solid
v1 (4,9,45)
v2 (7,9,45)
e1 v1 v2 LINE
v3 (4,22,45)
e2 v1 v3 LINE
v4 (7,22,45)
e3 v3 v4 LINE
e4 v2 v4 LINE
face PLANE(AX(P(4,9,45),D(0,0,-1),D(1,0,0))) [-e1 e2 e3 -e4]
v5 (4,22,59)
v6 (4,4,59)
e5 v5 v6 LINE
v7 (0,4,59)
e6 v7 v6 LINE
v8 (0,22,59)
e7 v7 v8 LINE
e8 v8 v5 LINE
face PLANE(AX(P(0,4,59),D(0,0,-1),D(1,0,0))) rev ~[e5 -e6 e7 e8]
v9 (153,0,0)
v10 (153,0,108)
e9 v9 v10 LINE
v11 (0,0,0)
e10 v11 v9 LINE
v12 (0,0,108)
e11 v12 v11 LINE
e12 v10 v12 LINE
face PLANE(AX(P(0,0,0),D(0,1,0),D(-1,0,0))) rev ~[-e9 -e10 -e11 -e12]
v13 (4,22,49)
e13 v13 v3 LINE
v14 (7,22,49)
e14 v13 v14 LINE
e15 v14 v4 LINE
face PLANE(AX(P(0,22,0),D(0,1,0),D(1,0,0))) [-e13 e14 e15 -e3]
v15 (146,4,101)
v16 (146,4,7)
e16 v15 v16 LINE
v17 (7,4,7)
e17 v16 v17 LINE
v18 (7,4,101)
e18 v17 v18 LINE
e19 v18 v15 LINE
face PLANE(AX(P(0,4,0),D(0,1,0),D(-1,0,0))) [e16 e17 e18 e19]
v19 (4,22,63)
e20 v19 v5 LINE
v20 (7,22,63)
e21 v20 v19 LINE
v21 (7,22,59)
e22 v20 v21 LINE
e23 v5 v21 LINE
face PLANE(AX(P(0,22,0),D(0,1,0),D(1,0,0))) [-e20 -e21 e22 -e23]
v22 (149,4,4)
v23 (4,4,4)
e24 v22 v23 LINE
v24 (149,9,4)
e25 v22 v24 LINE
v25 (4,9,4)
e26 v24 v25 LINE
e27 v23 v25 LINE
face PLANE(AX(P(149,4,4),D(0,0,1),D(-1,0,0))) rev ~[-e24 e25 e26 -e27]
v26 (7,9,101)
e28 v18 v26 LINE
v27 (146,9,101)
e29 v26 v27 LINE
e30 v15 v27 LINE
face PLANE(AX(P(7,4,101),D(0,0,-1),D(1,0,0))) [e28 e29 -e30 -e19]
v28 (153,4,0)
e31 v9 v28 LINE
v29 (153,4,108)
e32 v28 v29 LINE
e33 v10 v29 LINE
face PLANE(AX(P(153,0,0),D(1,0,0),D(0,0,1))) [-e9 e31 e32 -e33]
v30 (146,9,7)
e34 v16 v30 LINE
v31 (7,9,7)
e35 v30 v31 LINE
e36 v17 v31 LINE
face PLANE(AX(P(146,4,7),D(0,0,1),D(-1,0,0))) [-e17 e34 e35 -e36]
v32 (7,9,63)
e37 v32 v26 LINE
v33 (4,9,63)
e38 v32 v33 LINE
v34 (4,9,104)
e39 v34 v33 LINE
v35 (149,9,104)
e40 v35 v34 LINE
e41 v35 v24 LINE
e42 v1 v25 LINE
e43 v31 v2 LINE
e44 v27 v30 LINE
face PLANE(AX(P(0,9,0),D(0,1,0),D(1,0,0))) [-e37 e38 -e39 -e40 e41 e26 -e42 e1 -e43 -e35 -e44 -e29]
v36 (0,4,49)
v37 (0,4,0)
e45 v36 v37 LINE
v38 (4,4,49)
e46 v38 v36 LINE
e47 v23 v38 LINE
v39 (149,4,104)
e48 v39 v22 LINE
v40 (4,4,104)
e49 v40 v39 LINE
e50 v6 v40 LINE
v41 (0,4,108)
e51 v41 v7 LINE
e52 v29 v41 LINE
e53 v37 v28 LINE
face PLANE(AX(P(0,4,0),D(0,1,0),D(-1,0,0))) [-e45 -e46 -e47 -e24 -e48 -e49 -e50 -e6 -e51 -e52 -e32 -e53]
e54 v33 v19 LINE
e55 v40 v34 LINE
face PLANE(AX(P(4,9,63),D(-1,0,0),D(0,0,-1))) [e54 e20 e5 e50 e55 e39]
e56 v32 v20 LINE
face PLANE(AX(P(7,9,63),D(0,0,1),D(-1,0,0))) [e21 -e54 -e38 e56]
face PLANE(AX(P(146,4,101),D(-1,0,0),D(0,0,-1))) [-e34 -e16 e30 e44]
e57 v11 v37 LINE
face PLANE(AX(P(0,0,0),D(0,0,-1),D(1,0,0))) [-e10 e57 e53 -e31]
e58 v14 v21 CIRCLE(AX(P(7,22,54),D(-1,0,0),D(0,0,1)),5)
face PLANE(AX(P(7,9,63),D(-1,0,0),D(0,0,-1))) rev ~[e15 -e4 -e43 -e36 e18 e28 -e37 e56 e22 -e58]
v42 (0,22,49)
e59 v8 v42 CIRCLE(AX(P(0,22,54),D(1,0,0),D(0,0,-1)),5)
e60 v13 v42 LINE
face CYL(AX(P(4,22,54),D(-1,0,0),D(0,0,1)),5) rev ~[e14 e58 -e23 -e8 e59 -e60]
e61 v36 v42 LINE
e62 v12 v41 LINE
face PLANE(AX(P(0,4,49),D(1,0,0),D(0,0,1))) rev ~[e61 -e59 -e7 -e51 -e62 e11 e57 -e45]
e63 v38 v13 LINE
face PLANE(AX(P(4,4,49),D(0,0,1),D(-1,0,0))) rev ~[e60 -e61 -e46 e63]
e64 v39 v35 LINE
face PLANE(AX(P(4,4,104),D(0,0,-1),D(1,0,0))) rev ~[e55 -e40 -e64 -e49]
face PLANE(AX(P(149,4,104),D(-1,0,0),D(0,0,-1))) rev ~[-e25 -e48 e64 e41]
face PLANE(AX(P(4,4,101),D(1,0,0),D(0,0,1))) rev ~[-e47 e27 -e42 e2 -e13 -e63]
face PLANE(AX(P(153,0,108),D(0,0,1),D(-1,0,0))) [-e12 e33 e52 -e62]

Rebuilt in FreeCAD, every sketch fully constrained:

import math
import FreeCAD as App
import Part
import Sketcher

doc = App.newDocument("Part")
body = doc.addObject("PartDesign::Body", "Body")

# Sketch on XZ plane
sketch1 = body.newObject("Sketcher::SketchObject", "Sketch")
sketch1.AttachmentSupport = (doc.getObject("XZ_Plane"), [""])
sketch1.MapMode = "FlatFace"
sketch1.addGeometry(Part.LineSegment(App.Vector(153, 0, 0), App.Vector(0, 0, 0)), False)
sketch1.addGeometry(Part.LineSegment(App.Vector(0, 0, 0), App.Vector(0, 108, 0)), False)
sketch1.addGeometry(Part.LineSegment(App.Vector(0, 108, 0), App.Vector(153, 108, 0)), False)
sketch1.addGeometry(Part.LineSegment(App.Vector(153, 108, 0), App.Vector(153, 0, 0)), False)
sketch1.addConstraint(Sketcher.Constraint("Coincident", 0, 2, 1, 1))
sketch1.addConstraint(Sketcher.Constraint("Coincident", 1, 2, 2, 1))
sketch1.addConstraint(Sketcher.Constraint("Coincident", 2, 2, 3, 1))
sketch1.addConstraint(Sketcher.Constraint("Coincident", 3, 2, 0, 1))
sketch1.addConstraint(Sketcher.Constraint("Horizontal", 0))
sketch1.addConstraint(Sketcher.Constraint("Vertical", 1))
sketch1.addConstraint(Sketcher.Constraint("Horizontal", 2))
sketch1.addConstraint(Sketcher.Constraint("Vertical", 3))
sketch1.addConstraint(Sketcher.Constraint("Coincident", 0, 2, -1, 1))
sketch1.addConstraint(Sketcher.Constraint("DistanceX", 0, 2, 0, 1, 153.0))
sketch1.addConstraint(Sketcher.Constraint("DistanceY", 1, 1, 1, 2, 108.0))
pad1 = body.newObject("PartDesign::Pad", "Pad")
pad1.Profile = sketch1
pad1.Length = 4
pad1.Reversed = True

# Sketch on XZ plane
sketch2 = body.newObject("Sketcher::SketchObject", "Sketch001")
sketch2.AttachmentSupport = (doc.getObject("XZ_Plane"), [""])
sketch2.MapMode = "FlatFace"
sketch2.AttachmentOffset = App.Placement(App.Vector(0, 0, -4), App.Rotation())
sketch2.addGeometry(Part.LineSegment(App.Vector(4, 104, 0), App.Vector(149, 104, 0)), False)
sketch2.addGeometry(Part.LineSegment(App.Vector(149, 104, 0), App.Vector(149, 4, 0)), False)
sketch2.addGeometry(Part.LineSegment(App.Vector(149, 4, 0), App.Vector(4, 4, 0)), False)
sketch2.addGeometry(Part.LineSegment(App.Vector(4, 4, 0), App.Vector(4, 104, 0)), False)
sketch2.addGeometry(Part.LineSegment(App.Vector(7, 7, 0), App.Vector(146, 7, 0)), False)
sketch2.addGeometry(Part.LineSegment(App.Vector(146, 7, 0), App.Vector(146, 101, 0)), False)
sketch2.addGeometry(Part.LineSegment(App.Vector(146, 101, 0), App.Vector(7, 101, 0)), False)
sketch2.addGeometry(Part.LineSegment(App.Vector(7, 101, 0), App.Vector(7, 7, 0)), False)
sketch2.addConstraint(Sketcher.Constraint("Coincident", 0, 2, 1, 1))
sketch2.addConstraint(Sketcher.Constraint("Coincident", 1, 2, 2, 1))
sketch2.addConstraint(Sketcher.Constraint("Coincident", 2, 2, 3, 1))
sketch2.addConstraint(Sketcher.Constraint("Coincident", 3, 2, 0, 1))
sketch2.addConstraint(Sketcher.Constraint("Coincident", 4, 2, 5, 1))
sketch2.addConstraint(Sketcher.Constraint("Coincident", 5, 2, 6, 1))
sketch2.addConstraint(Sketcher.Constraint("Coincident", 6, 2, 7, 1))
sketch2.addConstraint(Sketcher.Constraint("Coincident", 7, 2, 4, 1))
sketch2.addConstraint(Sketcher.Constraint("Horizontal", 0))
sketch2.addConstraint(Sketcher.Constraint("Vertical", 1))
sketch2.addConstraint(Sketcher.Constraint("Horizontal", 2))
sketch2.addConstraint(Sketcher.Constraint("Vertical", 3))
sketch2.addConstraint(Sketcher.Constraint("Horizontal", 4))
sketch2.addConstraint(Sketcher.Constraint("Vertical", 5))
sketch2.addConstraint(Sketcher.Constraint("Horizontal", 6))
sketch2.addConstraint(Sketcher.Constraint("Vertical", 7))
sketch2.addConstraint(Sketcher.Constraint("DistanceX", 0, 1, 0, 2, 145.0))
sketch2.addConstraint(Sketcher.Constraint("DistanceX", 4, 1, 4, 2, 139.0))
sketch2.addConstraint(Sketcher.Constraint("DistanceY", 1, 2, 1, 1, 100.0))
sketch2.addConstraint(Sketcher.Constraint("DistanceY", 5, 1, 5, 2, 94.0))
sketch2.addConstraint(Sketcher.Constraint("DistanceY", -1, 1, 1, 2, 4.0))
sketch2.addConstraint(Sketcher.Constraint("DistanceX", -1, 1, 2, 2, 4.0))
sketch2.addConstraint(Sketcher.Constraint("DistanceX", 4, 2, 1, 2, 3.0))
sketch2.addConstraint(Sketcher.Constraint("DistanceY", 1, 2, 4, 2, 3.0))
pad2 = body.newObject("PartDesign::Pad", "Pad001")
pad2.Profile = sketch2
pad2.Length = 5
pad2.Reversed = True

# Sketch on XZ plane
sketch3 = body.newObject("Sketcher::SketchObject", "Sketch002")
sketch3.AttachmentSupport = (doc.getObject("XZ_Plane"), [""])
sketch3.MapMode = "FlatFace"
sketch3.AttachmentOffset = App.Placement(App.Vector(0, 0, -4), App.Rotation())
sketch3.addGeometry(Part.LineSegment(App.Vector(4, 49, 0), App.Vector(0, 49, 0)), False)
sketch3.addGeometry(Part.LineSegment(App.Vector(0, 49, 0), App.Vector(0, 59, 0)), False)
sketch3.addGeometry(Part.LineSegment(App.Vector(0, 59, 0), App.Vector(4, 59, 0)), False)
sketch3.addGeometry(Part.LineSegment(App.Vector(4, 59, 0), App.Vector(4, 49, 0)), False)
sketch3.addConstraint(Sketcher.Constraint("Coincident", 0, 2, 1, 1))
sketch3.addConstraint(Sketcher.Constraint("Coincident", 1, 2, 2, 1))
sketch3.addConstraint(Sketcher.Constraint("Coincident", 2, 2, 3, 1))
sketch3.addConstraint(Sketcher.Constraint("Coincident", 3, 2, 0, 1))
sketch3.addConstraint(Sketcher.Constraint("Horizontal", 0))
sketch3.addConstraint(Sketcher.Constraint("Vertical", 1))
sketch3.addConstraint(Sketcher.Constraint("Horizontal", 2))
sketch3.addConstraint(Sketcher.Constraint("Vertical", 3))
sketch3.addConstraint(Sketcher.Constraint("PointOnObject", 0, 2, -2))
sketch3.addConstraint(Sketcher.Constraint("DistanceX", 0, 2, 0, 1, 4.0))
sketch3.addConstraint(Sketcher.Constraint("DistanceY", 1, 1, 1, 2, 10.0))
sketch3.addConstraint(Sketcher.Constraint("DistanceY", -1, 1, 0, 2, 49.0))
pad3 = body.newObject("PartDesign::Pad", "Pad002")
pad3.Profile = sketch3
pad3.Length = 18
pad3.Reversed = True

# Sketch on YZ plane
sketch4 = body.newObject("Sketcher::SketchObject", "Sketch003")
sketch4.AttachmentSupport = (doc.getObject("YZ_Plane"), [""])
sketch4.MapMode = "FlatFace"
sketch4.AttachmentOffset = App.Placement(App.Vector(0, 0, 4), App.Rotation())
sketch4.addGeometry(Part.ArcOfCircle(Part.Circle(App.Vector(22, 54, 0), App.Vector(0, 0, 1), 5), math.radians(90), math.radians(270)), False)
sketch4.addGeometry(Part.LineSegment(App.Vector(22, 49, 0), App.Vector(22, 59, 0)), False)
sketch4.addConstraint(Sketcher.Constraint("Coincident", 0, 1, 1, 2))
sketch4.addConstraint(Sketcher.Constraint("Coincident", 1, 1, 0, 2))
sketch4.addConstraint(Sketcher.Constraint("Vertical", 1))
sketch4.addConstraint(Sketcher.Constraint("Radius", 0, 5.0))
sketch4.addConstraint(Sketcher.Constraint("DistanceX", -1, 1, 0, 3, 22.0))
sketch4.addConstraint(Sketcher.Constraint("DistanceY", -1, 1, 0, 3, 54.0))
sketch4.addConstraint(Sketcher.Constraint("DistanceX", -1, 1, 0, 1, 22.0))
pocket1 = body.newObject("PartDesign::Pocket", "Pocket")
pocket1.Profile = sketch4
pocket1.Length = 18

# Sketch on XZ plane
sketch5 = body.newObject("Sketcher::SketchObject", "Sketch004")
sketch5.AttachmentSupport = (doc.getObject("XZ_Plane"), [""])
sketch5.MapMode = "FlatFace"
sketch5.AttachmentOffset = App.Placement(App.Vector(0, 0, -9), App.Rotation())
sketch5.addGeometry(Part.LineSegment(App.Vector(4, 63, 0), App.Vector(7, 63, 0)), False)
sketch5.addGeometry(Part.LineSegment(App.Vector(7, 63, 0), App.Vector(7, 45, 0)), False)
sketch5.addGeometry(Part.LineSegment(App.Vector(7, 45, 0), App.Vector(4, 45, 0)), False)
sketch5.addGeometry(Part.LineSegment(App.Vector(4, 45, 0), App.Vector(4, 63, 0)), False)
sketch5.addConstraint(Sketcher.Constraint("Coincident", 0, 2, 1, 1))
sketch5.addConstraint(Sketcher.Constraint("Coincident", 1, 2, 2, 1))
sketch5.addConstraint(Sketcher.Constraint("Coincident", 2, 2, 3, 1))
sketch5.addConstraint(Sketcher.Constraint("Coincident", 3, 2, 0, 1))
sketch5.addConstraint(Sketcher.Constraint("Horizontal", 0))
sketch5.addConstraint(Sketcher.Constraint("Vertical", 1))
sketch5.addConstraint(Sketcher.Constraint("Horizontal", 2))
sketch5.addConstraint(Sketcher.Constraint("Vertical", 3))
sketch5.addConstraint(Sketcher.Constraint("DistanceY", 1, 2, 1, 1, 18.0))
sketch5.addConstraint(Sketcher.Constraint("DistanceX", 0, 1, 0, 2, 3.0))
sketch5.addConstraint(Sketcher.Constraint("DistanceX", -1, 1, 0, 2, 7.0))
sketch5.addConstraint(Sketcher.Constraint("DistanceY", -1, 1, 0, 2, 63.0))
pad4 = body.newObject("PartDesign::Pad", "Pad003")
pad4.Profile = sketch5
pad4.Length = 13
pad4.Reversed = True

# Sketch on YZ plane
sketch6 = body.newObject("Sketcher::SketchObject", "Sketch005")
sketch6.AttachmentSupport = (doc.getObject("YZ_Plane"), [""])
sketch6.MapMode = "FlatFace"
sketch6.AttachmentOffset = App.Placement(App.Vector(0, 0, 4), App.Rotation())
sketch6.addGeometry(Part.LineSegment(App.Vector(22, 59, 0), App.Vector(22, 49, 0)), False)
sketch6.addGeometry(Part.ArcOfCircle(Part.Circle(App.Vector(22, 54, 0), App.Vector(0, 0, 1), 5), math.radians(90), math.radians(270)), False)
sketch6.addConstraint(Sketcher.Constraint("Coincident", 0, 1, 1, 1))
sketch6.addConstraint(Sketcher.Constraint("Coincident", 1, 2, 0, 2))
sketch6.addConstraint(Sketcher.Constraint("Vertical", 0))
sketch6.addConstraint(Sketcher.Constraint("Vertical", 1, 3, 0, 1))
sketch6.addConstraint(Sketcher.Constraint("Radius", 1, 5.0))
sketch6.addConstraint(Sketcher.Constraint("DistanceX", -1, 1, 1, 3, 22.0))
sketch6.addConstraint(Sketcher.Constraint("DistanceY", -1, 1, 1, 3, 54.0))
pocket2 = body.newObject("PartDesign::Pocket", "Pocket001")
pocket2.Profile = sketch6
pocket2.Length = 13
pocket2.Reversed = True

doc.recompute()
